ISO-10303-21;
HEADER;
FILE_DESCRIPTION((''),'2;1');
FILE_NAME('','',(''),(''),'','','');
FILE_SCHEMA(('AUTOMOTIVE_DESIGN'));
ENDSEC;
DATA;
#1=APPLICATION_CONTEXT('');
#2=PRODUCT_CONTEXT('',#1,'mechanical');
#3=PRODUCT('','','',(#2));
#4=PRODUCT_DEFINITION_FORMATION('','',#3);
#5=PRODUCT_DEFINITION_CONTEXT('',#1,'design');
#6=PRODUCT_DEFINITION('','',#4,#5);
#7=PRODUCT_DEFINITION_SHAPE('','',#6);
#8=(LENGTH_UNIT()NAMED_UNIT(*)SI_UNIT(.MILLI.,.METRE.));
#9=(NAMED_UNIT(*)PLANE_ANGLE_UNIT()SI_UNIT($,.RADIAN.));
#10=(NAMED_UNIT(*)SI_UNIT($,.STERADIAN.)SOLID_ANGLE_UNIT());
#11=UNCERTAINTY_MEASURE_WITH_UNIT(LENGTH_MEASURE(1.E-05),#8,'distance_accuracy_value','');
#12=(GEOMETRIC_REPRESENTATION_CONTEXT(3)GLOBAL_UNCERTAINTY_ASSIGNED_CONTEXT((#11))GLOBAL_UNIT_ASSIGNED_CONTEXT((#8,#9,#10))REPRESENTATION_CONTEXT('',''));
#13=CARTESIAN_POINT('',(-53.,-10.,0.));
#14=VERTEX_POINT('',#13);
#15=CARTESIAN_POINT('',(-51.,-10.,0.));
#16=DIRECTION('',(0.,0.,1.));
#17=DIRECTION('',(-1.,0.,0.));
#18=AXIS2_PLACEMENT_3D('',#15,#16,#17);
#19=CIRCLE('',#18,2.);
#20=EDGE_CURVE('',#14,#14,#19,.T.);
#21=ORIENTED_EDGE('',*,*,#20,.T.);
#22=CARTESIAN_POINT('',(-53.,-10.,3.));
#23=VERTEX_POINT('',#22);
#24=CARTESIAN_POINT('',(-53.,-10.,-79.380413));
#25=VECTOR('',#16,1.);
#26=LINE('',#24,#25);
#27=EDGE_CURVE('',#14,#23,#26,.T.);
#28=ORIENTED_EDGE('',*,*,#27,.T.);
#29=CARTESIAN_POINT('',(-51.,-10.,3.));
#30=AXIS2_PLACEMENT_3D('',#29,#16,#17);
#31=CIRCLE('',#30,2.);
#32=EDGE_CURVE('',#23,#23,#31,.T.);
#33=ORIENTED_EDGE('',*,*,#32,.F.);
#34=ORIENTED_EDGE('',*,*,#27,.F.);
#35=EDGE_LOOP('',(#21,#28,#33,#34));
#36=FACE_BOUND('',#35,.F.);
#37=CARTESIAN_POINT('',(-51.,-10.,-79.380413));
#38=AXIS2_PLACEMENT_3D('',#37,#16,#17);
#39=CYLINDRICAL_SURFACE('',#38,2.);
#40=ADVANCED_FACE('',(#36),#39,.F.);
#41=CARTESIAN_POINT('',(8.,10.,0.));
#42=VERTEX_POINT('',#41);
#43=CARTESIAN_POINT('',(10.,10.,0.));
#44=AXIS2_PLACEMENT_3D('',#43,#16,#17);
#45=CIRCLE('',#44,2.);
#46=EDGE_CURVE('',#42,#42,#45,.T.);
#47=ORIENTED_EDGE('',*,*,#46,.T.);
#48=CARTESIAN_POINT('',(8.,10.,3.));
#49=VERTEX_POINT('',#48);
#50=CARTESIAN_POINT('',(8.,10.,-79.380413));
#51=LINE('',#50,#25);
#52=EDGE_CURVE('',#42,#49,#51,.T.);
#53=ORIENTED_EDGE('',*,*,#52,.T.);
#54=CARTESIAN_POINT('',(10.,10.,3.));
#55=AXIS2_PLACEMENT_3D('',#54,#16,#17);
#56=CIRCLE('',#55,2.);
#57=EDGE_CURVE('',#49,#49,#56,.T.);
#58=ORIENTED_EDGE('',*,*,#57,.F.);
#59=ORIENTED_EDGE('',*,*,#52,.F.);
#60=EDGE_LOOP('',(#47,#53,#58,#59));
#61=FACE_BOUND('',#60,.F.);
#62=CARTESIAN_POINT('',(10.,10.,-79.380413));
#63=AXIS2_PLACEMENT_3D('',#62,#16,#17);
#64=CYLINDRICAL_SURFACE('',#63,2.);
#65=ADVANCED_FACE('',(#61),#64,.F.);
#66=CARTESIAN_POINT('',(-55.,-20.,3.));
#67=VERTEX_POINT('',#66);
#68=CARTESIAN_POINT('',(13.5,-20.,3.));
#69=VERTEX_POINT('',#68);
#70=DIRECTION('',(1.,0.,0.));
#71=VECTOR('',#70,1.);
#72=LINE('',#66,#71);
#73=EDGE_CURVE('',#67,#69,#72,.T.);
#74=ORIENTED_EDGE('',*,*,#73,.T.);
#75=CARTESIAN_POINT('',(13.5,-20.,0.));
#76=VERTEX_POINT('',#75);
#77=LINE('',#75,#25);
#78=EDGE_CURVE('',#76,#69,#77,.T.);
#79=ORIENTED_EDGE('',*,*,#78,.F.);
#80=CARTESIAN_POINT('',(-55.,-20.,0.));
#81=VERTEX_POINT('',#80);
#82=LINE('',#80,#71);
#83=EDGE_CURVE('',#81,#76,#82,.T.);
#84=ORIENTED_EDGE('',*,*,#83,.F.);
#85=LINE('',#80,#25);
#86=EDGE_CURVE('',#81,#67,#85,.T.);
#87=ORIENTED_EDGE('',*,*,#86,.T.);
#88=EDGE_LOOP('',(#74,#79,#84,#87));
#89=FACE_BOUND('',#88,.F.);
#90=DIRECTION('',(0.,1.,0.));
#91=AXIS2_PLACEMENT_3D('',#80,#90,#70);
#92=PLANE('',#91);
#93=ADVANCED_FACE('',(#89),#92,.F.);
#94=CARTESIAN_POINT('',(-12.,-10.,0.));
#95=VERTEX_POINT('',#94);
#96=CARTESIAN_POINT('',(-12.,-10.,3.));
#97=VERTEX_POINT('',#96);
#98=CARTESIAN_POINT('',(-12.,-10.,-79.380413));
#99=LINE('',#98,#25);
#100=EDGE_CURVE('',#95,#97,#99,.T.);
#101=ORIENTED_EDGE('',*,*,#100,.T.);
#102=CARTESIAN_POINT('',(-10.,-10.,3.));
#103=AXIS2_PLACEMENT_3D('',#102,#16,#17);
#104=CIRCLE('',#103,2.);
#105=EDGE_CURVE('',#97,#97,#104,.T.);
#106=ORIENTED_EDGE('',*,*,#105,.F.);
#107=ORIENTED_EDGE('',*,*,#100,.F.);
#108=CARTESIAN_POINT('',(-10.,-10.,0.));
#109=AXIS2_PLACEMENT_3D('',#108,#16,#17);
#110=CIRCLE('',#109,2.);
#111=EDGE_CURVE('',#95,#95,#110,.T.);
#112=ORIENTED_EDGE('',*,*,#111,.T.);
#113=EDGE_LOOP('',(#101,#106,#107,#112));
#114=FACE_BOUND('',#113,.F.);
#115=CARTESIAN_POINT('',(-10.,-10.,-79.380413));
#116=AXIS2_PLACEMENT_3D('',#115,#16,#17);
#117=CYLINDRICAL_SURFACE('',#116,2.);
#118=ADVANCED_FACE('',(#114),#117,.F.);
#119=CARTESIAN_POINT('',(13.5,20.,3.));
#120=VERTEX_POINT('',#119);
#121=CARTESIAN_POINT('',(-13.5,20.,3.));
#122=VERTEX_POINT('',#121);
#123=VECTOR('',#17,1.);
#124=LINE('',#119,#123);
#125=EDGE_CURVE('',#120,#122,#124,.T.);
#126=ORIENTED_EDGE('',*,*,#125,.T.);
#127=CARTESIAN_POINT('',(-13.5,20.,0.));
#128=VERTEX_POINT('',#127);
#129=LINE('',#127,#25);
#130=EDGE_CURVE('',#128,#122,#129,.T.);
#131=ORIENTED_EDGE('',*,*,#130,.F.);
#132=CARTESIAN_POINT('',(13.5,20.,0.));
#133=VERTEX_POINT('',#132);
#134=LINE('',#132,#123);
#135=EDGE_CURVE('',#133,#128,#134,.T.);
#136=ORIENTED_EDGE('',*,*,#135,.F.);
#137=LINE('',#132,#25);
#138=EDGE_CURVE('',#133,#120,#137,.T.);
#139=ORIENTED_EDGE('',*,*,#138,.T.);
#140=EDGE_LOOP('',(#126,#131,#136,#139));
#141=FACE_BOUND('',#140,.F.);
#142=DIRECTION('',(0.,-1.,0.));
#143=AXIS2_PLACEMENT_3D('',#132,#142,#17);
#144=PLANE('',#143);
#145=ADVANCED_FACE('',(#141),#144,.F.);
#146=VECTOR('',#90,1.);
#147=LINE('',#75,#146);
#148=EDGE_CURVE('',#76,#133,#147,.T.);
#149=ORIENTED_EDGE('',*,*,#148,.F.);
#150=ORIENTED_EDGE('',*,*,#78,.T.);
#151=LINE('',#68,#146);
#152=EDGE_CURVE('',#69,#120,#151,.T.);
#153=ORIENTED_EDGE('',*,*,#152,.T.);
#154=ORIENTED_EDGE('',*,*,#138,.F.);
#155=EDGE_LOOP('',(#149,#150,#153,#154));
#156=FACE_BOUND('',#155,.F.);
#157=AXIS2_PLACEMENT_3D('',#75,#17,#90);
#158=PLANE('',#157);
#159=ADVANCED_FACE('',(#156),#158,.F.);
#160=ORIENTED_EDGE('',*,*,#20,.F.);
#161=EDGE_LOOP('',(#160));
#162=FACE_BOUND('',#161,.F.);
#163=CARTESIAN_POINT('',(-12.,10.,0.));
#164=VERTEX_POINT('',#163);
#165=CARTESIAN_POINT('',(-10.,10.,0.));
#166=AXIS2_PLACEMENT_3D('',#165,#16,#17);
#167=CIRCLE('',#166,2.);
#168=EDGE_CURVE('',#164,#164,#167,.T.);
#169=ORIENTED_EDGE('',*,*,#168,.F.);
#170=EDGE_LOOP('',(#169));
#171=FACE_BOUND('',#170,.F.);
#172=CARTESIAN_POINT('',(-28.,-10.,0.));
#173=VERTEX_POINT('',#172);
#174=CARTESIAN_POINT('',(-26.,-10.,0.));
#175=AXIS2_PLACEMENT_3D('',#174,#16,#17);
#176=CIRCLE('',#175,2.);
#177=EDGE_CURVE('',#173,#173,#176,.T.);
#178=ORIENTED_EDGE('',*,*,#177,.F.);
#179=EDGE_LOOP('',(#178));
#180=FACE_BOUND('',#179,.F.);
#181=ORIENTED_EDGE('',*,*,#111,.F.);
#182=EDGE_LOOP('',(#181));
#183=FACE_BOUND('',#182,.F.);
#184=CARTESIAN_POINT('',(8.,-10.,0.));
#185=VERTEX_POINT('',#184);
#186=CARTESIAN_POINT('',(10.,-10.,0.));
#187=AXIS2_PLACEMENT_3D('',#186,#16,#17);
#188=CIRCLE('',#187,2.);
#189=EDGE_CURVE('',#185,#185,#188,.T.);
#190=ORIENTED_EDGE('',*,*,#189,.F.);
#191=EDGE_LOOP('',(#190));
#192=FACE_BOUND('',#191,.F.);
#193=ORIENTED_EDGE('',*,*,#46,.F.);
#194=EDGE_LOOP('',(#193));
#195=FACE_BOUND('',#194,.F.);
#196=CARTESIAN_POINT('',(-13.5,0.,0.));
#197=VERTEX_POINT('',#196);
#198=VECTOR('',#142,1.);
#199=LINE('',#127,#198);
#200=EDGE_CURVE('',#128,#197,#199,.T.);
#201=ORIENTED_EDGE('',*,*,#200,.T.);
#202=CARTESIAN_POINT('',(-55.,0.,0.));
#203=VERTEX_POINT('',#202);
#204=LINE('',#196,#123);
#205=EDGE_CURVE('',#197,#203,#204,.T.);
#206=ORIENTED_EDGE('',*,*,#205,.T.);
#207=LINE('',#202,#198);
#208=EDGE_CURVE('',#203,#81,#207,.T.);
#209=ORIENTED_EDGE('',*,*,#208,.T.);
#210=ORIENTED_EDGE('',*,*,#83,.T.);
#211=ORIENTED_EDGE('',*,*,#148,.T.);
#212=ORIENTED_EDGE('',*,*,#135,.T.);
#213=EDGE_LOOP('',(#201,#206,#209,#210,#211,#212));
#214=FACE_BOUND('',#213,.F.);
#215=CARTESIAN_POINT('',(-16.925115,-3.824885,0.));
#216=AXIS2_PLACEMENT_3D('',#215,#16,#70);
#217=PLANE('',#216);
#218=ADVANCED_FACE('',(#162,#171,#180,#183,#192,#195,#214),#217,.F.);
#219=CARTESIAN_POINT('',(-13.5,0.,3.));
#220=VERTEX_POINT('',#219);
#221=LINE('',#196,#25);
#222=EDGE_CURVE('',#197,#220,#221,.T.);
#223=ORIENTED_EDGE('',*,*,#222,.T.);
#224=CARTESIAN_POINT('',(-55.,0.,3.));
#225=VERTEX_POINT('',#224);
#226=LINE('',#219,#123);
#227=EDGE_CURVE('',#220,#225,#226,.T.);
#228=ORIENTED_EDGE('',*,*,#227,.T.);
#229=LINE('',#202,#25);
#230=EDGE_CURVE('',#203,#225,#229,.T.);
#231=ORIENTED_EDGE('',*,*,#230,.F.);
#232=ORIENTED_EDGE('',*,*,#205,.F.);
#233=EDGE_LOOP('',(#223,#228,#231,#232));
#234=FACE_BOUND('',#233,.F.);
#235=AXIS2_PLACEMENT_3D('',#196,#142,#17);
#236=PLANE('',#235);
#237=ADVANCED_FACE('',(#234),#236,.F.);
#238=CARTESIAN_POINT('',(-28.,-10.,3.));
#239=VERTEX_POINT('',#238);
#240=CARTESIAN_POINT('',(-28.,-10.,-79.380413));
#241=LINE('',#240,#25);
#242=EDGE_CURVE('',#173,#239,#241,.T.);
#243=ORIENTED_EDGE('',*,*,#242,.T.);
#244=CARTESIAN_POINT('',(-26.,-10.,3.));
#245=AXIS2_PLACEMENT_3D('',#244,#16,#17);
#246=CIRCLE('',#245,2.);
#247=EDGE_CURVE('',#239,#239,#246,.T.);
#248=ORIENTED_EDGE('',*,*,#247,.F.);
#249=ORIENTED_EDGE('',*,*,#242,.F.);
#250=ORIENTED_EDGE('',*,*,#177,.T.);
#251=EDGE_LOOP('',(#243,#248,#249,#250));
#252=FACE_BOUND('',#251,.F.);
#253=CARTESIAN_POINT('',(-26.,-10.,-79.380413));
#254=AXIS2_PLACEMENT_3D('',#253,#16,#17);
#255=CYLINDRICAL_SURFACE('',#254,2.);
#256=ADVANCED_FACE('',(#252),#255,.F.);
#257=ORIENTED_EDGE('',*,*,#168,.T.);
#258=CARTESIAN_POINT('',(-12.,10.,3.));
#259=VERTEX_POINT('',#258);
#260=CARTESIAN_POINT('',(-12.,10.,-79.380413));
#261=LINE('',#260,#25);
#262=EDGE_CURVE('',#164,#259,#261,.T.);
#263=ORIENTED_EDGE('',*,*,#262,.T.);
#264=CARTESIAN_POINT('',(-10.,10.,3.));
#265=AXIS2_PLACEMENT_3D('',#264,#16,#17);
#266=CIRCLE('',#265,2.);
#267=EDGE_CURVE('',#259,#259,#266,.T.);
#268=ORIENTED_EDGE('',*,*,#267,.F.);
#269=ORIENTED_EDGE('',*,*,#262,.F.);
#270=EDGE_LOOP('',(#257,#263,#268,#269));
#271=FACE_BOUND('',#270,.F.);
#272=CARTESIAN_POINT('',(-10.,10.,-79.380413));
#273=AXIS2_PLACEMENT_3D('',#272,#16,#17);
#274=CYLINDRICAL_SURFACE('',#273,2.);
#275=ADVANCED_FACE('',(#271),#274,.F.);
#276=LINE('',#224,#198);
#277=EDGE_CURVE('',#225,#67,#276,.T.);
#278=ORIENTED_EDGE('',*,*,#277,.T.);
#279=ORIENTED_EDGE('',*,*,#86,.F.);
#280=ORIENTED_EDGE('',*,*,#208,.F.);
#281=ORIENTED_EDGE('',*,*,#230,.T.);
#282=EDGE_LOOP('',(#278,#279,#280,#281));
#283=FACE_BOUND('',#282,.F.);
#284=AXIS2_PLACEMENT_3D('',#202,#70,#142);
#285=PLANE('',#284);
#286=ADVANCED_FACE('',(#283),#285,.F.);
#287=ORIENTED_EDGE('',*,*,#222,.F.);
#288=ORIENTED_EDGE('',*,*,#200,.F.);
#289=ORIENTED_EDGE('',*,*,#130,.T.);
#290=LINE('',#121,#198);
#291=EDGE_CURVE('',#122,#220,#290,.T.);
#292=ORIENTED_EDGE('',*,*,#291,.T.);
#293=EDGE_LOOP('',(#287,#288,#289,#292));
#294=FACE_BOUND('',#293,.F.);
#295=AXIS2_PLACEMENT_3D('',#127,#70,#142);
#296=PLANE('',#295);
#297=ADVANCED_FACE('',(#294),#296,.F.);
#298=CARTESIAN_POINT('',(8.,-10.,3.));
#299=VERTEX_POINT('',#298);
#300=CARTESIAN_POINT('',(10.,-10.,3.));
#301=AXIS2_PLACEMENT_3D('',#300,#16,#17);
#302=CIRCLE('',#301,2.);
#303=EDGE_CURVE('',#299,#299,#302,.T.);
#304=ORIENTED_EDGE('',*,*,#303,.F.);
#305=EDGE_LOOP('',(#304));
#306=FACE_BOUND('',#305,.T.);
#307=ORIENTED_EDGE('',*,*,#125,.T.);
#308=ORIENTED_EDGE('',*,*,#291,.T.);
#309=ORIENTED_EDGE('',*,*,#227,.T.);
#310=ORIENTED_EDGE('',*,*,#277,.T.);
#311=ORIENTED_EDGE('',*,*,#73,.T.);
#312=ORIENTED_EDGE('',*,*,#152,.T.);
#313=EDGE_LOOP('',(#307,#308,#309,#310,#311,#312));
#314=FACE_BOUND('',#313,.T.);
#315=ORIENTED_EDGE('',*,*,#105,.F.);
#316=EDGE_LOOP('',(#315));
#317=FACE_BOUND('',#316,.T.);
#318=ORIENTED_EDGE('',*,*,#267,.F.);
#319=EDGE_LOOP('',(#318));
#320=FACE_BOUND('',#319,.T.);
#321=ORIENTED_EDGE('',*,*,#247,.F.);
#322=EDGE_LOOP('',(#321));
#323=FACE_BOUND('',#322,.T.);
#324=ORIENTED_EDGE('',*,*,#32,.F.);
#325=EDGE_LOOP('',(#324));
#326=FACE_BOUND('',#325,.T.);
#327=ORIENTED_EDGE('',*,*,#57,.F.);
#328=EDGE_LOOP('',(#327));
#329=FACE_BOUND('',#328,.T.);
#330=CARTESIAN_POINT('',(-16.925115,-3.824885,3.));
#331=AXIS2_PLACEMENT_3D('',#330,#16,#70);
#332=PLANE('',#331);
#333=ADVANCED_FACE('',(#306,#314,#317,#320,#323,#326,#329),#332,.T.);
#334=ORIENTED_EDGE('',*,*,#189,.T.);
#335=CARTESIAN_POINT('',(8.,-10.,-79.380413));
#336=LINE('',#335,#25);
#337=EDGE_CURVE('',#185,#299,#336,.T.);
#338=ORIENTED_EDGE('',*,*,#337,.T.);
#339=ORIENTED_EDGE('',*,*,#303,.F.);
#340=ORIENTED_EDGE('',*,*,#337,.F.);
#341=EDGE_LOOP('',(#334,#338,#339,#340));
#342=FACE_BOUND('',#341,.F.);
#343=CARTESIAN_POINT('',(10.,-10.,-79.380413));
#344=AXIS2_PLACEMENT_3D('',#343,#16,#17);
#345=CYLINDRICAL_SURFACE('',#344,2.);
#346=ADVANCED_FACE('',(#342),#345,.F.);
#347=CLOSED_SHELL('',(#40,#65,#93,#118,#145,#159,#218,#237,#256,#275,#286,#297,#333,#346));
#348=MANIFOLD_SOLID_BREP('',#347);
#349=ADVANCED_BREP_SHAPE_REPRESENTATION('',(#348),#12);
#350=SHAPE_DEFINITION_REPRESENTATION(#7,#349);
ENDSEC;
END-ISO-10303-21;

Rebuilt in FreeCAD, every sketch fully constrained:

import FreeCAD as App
import Part
import Sketcher
from FreeCAD import Vector


def add_polygon(sketch, points):
    """Adds a closed chain of lines whose ends are joined by coincident constraints."""
    first, n = sketch.GeometryCount, len(points)
    for a, b in zip(points, points[1:] + points[:1]):
        sketch.addGeometry(Part.LineSegment(App.Vector(*a, 0), App.Vector(*b, 0)), False)
    for i in range(n):
        sketch.addConstraint(Sketcher.Constraint("Coincident", first + i, 2, first + (i + 1) % n, 1))

doc = App.newDocument("Part")
body = doc.addObject("PartDesign::Body", "Body")

# Sketch on XY plane
sketch1 = body.newObject("Sketcher::SketchObject", "Sketch")
sketch1.AttachmentSupport = (doc.getObject("XY_Plane"), [""])
sketch1.MapMode = "FlatFace"
add_polygon(sketch1, [(14, -20), (14, 20), (-14, 20), (-14, 0), (-55, 0), (-55, -20)])  # lines 0-5
sketch1.addConstraint(Sketcher.Constraint("Vertical", 0))
sketch1.addConstraint(Sketcher.Constraint("Horizontal", 1))
sketch1.addConstraint(Sketcher.Constraint("Vertical", 2))
sketch1.addConstraint(Sketcher.Constraint("Horizontal", 3))
sketch1.addConstraint(Sketcher.Constraint("Vertical", 4))
sketch1.addConstraint(Sketcher.Constraint("Horizontal", 5))
sketch1.addConstraint(Sketcher.Constraint("Symmetric", 1, 2, 5, 2, -1, 1))
sketch1.addConstraint(Sketcher.Constraint("PointOnObject", 2, 2, -1))
sketch1.addConstraint(Sketcher.Constraint("DistanceX", 1, 2, 1, 1, 27.0))
sketch1.addConstraint(Sketcher.Constraint("DistanceY", 0, 1, 0, 2, 40.0))
sketch1.addConstraint(Sketcher.Constraint("DistanceX", 3, 2, 3, 1, 41.5))
pad1 = body.newObject("PartDesign::Pad", "Pad")
pad1.Profile = sketch1
pad1.Length = 3

# Sketch on XY plane
sketch2 = body.newObject("Sketcher::SketchObject", "Sketch001")
sketch2.AttachmentSupport = (doc.getObject("XY_Plane"), [""])
sketch2.MapMode = "FlatFace"
sketch2.addGeometry(Part.Circle(Vector(-51, -10, 0), Vector(0, 0, 1), 2), False)
sketch2.addGeometry(Part.Circle(Vector(-26, -10, 0), Vector(0, 0, 1), 2), False)
sketch2.addGeometry(Part.Circle(Vector(-10, -10, 0), Vector(0, 0, 1), 2), False)
sketch2.addGeometry(Part.Circle(Vector(10, 10, 0), Vector(0, 0, 1), 2), False)
sketch2.addGeometry(Part.Circle(Vector(10, -10, 0), Vector(0, 0, 1), 2), False)
sketch2.addGeometry(Part.Circle(Vector(-10, 10, 0), Vector(0, 0, 1), 2), False)
sketch2.addConstraint(Sketcher.Constraint("Equal", 0, 1))
sketch2.addConstraint(Sketcher.Constraint("Equal", 1, 2))
sketch2.addConstraint(Sketcher.Constraint("Equal", 2, 3))
sketch2.addConstraint(Sketcher.Constraint("Equal", 3, 4))
sketch2.addConstraint(Sketcher.Constraint("Equal", 4, 5))
sketch2.addConstraint(Sketcher.Constraint("Symmetric", 2, 3, 3, 3, -1, 1))
sketch2.addConstraint(Sketcher.Constraint("Symmetric", 4, 3, 5, 3, -1, 1))
sketch2.addConstraint(Sketcher.Constraint("Symmetric", 2, 3, 4, 3, -2))
sketch2.addConstraint(Sketcher.Constraint("Horizontal", 0, 3, 1, 3))
sketch2.addConstraint(Sketcher.Constraint("Horizontal", 1, 3, 2, 3))
sketch2.addConstraint(Sketcher.Constraint("Diameter", 0, 4.0))
sketch2.addConstraint(Sketcher.Constraint("DistanceX", 0, 3, -1, 1, 51.0))
sketch2.addConstraint(Sketcher.Constraint("DistanceY", 0, 3, -1, 1, 10.0))
sketch2.addConstraint(Sketcher.Constraint("DistanceX", 1, 3, -1, 1, 26.0))
sketch2.addConstraint(Sketcher.Constraint("DistanceX", 2, 3, -1, 1, 10.0))
doc.recompute()
hole = body.newObject("PartDesign::Hole", "Hole")
hole.Profile = sketch2
hole.ThreadType = "None"
hole.Diameter = 4
hole.DepthType = "ThroughAll"
hole.Reversed = True

doc.recompute()
